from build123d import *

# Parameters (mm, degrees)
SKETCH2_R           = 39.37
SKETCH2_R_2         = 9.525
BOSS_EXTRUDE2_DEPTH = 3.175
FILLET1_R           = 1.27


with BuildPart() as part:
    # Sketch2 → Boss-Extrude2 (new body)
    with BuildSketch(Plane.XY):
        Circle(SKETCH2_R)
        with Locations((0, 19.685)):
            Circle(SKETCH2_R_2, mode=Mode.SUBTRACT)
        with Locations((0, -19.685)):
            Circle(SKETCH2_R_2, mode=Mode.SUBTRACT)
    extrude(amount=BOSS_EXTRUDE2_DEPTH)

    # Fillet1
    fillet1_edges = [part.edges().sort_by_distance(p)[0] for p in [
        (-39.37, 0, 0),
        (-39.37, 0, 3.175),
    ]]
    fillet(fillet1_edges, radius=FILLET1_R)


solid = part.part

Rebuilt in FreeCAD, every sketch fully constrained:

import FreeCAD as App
import Part
import Sketcher
from FreeCAD import Vector
Q = App.Units.Quantity


def edges_at(feature, points):
    """Names of the edges that pass closest to the given points."""
    edges = feature.Shape.Edges
    near = lambda p: min(range(len(edges)), key=lambda i: edges[i].distToShape(Part.Vertex(*p))[0])
    return sorted({f"Edge{near(p) + 1}" for p in points})

doc = App.newDocument("Part")
body = doc.addObject("PartDesign::Body", "Body")

# Sketch on XY plane
sketch1 = body.newObject("Sketcher::SketchObject", "Sketch")
sketch1.AttachmentSupport = (doc.getObject("XY_Plane"), [""])
sketch1.MapMode = "FlatFace"
sketch1.addGeometry([
    Part.Circle(Vector(0, 0, 0), Vector(0, 0, 1), 39),
    Part.Circle(Vector(0, -20, 0), Vector(0, 0, 1), 10),
    Part.Circle(Vector(0, 20, 0), Vector(0, 0, 1), 10),
], False)
sketch1.addConstraint([
    Sketcher.Constraint("Coincident", 0, 3, -1, 1),
    Sketcher.Constraint("Equal", 1, 2),
    Sketcher.Constraint("Symmetric", 1, 3, 2, 3, -1, 1),
    Sketcher.Constraint("PointOnObject", 1, 3, -2),
    Sketcher.Constraint("Diameter", 0, Q("3.1 in")),
    Sketcher.Constraint("Diameter", 1, Q("0.75 in")),
    Sketcher.Constraint("DistanceY", 1, 3, 2, 3, Q("1.55 in")),
])
pad1 = body.newObject("PartDesign::Pad", "Pad")
pad1.Profile = sketch1
pad1.Length = Q("0.125 in")
doc.recompute()

fillet = body.newObject("PartDesign::Fillet", "Fillet")
fillet.Base = (pad1, edges_at(pad1, [(-39.37, 0, 0), (-39.37, 0, 3.175)]))
fillet.Radius = Q("0.05 in")

doc.recompute()
